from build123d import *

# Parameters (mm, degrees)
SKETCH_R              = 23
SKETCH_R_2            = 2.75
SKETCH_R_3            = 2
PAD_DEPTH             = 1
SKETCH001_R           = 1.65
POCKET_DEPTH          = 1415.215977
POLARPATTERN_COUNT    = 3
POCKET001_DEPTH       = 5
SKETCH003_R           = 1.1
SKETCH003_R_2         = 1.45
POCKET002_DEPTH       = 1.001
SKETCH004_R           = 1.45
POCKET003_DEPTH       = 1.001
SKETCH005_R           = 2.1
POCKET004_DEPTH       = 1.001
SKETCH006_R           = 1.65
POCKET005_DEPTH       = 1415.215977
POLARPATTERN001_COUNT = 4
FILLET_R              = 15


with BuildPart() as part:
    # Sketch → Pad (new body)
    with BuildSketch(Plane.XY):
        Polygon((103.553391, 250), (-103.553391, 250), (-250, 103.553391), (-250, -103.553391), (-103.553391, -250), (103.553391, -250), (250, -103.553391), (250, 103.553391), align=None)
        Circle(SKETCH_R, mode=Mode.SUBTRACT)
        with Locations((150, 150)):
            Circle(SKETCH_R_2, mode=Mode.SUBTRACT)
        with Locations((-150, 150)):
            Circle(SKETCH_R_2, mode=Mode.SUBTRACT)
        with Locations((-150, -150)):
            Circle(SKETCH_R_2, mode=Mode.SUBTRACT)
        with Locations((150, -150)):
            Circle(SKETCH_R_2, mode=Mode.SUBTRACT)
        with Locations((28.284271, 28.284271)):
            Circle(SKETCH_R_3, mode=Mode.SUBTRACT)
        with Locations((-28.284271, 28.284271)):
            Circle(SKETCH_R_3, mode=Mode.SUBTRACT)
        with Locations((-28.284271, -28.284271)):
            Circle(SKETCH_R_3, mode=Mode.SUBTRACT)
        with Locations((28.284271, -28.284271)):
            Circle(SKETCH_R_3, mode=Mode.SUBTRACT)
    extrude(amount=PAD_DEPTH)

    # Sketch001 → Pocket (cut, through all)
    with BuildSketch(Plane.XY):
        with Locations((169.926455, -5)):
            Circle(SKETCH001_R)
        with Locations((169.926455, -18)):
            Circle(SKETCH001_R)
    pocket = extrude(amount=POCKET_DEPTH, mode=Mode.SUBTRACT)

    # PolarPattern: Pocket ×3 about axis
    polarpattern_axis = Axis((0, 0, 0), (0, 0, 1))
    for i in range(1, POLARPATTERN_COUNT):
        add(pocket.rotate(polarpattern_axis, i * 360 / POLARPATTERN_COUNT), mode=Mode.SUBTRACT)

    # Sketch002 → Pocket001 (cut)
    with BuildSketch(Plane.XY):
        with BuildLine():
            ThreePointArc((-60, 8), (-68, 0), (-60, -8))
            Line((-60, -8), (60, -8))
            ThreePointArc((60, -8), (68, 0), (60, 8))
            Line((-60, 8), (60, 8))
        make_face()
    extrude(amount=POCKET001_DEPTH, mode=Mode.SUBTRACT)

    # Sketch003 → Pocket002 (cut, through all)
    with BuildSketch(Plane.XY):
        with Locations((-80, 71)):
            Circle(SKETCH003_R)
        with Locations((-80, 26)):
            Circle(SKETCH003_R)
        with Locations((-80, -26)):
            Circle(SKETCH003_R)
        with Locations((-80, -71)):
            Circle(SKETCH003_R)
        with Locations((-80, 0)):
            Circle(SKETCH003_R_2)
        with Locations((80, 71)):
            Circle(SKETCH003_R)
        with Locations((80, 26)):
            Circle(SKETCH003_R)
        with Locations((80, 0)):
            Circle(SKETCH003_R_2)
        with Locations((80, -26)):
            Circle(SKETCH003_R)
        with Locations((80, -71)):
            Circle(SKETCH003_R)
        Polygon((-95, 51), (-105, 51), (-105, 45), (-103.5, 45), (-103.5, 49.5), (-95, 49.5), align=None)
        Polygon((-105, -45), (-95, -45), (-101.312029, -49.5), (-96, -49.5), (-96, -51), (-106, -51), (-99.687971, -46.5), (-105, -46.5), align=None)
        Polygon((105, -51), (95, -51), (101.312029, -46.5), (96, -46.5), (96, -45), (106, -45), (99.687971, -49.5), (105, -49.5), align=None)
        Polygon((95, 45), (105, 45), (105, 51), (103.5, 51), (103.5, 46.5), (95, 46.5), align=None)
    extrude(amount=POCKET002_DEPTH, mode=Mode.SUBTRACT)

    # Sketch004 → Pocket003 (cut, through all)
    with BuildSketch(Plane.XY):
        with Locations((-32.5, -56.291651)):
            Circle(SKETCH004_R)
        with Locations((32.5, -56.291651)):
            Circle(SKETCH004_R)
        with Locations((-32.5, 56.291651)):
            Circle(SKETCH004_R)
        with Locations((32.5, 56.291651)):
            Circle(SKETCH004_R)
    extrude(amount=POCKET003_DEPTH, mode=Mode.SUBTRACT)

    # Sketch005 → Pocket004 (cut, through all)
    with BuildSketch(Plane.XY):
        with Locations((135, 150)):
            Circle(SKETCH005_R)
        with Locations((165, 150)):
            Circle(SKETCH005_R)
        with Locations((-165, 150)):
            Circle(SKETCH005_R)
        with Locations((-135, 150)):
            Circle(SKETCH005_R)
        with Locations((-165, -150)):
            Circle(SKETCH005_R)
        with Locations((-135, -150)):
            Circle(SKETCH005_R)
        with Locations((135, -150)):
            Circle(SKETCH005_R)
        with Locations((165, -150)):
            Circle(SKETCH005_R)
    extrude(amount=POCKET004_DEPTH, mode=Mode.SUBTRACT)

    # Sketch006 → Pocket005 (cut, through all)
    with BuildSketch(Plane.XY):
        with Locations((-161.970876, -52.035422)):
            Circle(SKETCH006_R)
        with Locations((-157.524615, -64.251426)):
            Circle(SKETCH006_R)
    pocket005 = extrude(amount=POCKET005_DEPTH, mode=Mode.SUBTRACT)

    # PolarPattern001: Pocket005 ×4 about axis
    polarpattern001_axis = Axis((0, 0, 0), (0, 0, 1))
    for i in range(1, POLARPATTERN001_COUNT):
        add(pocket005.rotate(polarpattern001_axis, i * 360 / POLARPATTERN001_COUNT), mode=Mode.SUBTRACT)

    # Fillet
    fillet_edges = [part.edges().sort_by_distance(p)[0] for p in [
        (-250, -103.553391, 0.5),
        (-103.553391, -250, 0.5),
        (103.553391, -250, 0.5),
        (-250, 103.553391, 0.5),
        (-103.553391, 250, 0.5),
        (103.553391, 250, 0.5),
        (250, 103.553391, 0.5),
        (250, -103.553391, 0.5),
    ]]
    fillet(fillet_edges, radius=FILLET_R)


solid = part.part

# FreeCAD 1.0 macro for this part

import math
import FreeCAD as App
import Part
import Sketcher

V = App.Vector


def edges_at(feature, points):
    """Names of the edges that pass closest to the given points."""
    edges = feature.Shape.Edges
    near = lambda p: min(range(len(edges)), key=lambda i: edges[i].distToShape(Part.Vertex(*p))[0])
    return sorted({f"Edge{near(p) + 1}" for p in points})


def add_polygon(sketch, points):
    """Adds a closed chain of lines whose ends are joined by coincident constraints."""
    first, n = sketch.GeometryCount, len(points)
    for a, b in zip(points, points[1:] + points[:1]):
        sketch.addGeometry(Part.LineSegment(App.Vector(*a, 0), App.Vector(*b, 0)), False)
    for i in range(n):
        sketch.addConstraint(Sketcher.Constraint("Coincident", first + i, 2, first + (i + 1) % n, 1))

doc = App.newDocument("Part")
body = doc.addObject("PartDesign::Body", "Body")

# Sketch on XY plane
sketch1 = doc.addObject("Sketcher::SketchObject", "Sketch")
body.addObject(sketch1)
sketch1.AttachmentSupport = (doc.XY_Plane, [""])
sketch1.MapMode = "FlatFace"
add_polygon(sketch1, [(103.6, 250), (-103.6, 250), (-250, 103.6), (-250, -103.6), (-103.6, -250), (103.6, -250), (250, -103.6), (250, 103.6)])  # lines 0-7
sketch1.addGeometry(Part.Circle(V(-150, -150, 0), V(0, 0, 1), 2.8), False)  # 8
sketch1.addGeometry(Part.Circle(V(-28.3, -28.3, 0), V(0, 0, 1), 2), False)  # 9
sketch1.addGeometry(Part.Circle(V(150, -150, 0), V(0, 0, 1), 2.8), False)  # 10
sketch1.addGeometry(Part.Circle(V(28.3, -28.3, 0), V(0, 0, 1), 2), False)  # 11
sketch1.addGeometry(Part.Circle(V(-28.3, 28.3, 0), V(0, 0, 1), 2), False)  # 12
sketch1.addGeometry(Part.Circle(V(-150, 150, 0), V(0, 0, 1), 2.8), False)  # 13
sketch1.addGeometry(Part.Circle(V(0, 0, 0), V(0, 0, 1), 23), False)  # 14
sketch1.addGeometry(Part.Circle(V(28.3, 28.3, 0), V(0, 0, 1), 2), False)  # 15
sketch1.addGeometry(Part.Circle(V(150, 150, 0), V(0, 0, 1), 2.8), False)  # 16
sketch1.addConstraint(Sketcher.Constraint("Horizontal", 0))
sketch1.addConstraint(Sketcher.Constraint("Vertical", 2))
sketch1.addConstraint(Sketcher.Constraint("Horizontal", 4))
sketch1.addConstraint(Sketcher.Constraint("Vertical", 6))
sketch1.addConstraint(Sketcher.Constraint("Coincident", 14, 3, -1, 1))
sketch1.addConstraint(Sketcher.Constraint("Equal", 8, 10))
sketch1.addConstraint(Sketcher.Constraint("Equal", 9, 11))
sketch1.addConstraint(Sketcher.Constraint("Equal", 11, 12))
sketch1.addConstraint(Sketcher.Constraint("Equal", 10, 13))
sketch1.addConstraint(Sketcher.Constraint("Equal", 12, 15))
sketch1.addConstraint(Sketcher.Constraint("Equal", 13, 16))
sketch1.addConstraint(Sketcher.Constraint("Symmetric", 11, 3, 12, 3, -1, 1))
sketch1.addConstraint(Sketcher.Constraint("Symmetric", 10, 3, 13, 3, -1, 1))
sketch1.addConstraint(Sketcher.Constraint("Symmetric", 9, 3, 15, 3, -1, 1))
sketch1.addConstraint(Sketcher.Constraint("Symmetric", 8, 3, 16, 3, -1, 1))
sketch1.addConstraint(Sketcher.Constraint("Symmetric", 0, 2, 4, 2, -1, 1))
sketch1.addConstraint(Sketcher.Constraint("Symmetric", 1, 2, 5, 2, -1, 1))
sketch1.addConstraint(Sketcher.Constraint("Symmetric", 8, 3, 10, 3, -2))
sketch1.addConstraint(Sketcher.Constraint("Symmetric", 9, 3, 11, 3, -2))
sketch1.addConstraint(Sketcher.Constraint("Perpendicular", 1, 3))
sketch1.addConstraint(Sketcher.Constraint("Perpendicular", 5, 7))
sketch1.addConstraint(Sketcher.Constraint("Horizontal", 2, 2, 5, 2))
sketch1.addConstraint(Sketcher.Constraint("Horizontal", 1, 2, 6, 2))
sketch1.addConstraint(Sketcher.Constraint("Vertical", 0, 2, 3, 2))
sketch1.addConstraint(Sketcher.Constraint("Equal", 4, 2))
sketch1.addConstraint(Sketcher.Constraint("Diameter", 9, 4.0))
sketch1.addConstraint(Sketcher.Constraint("Diameter", 14, 46.0))
sketch1.addConstraint(Sketcher.Constraint("Diameter", 8, 5.5))
sketch1.addConstraint(Sketcher.Constraint("DistanceX", 8, 3, -1, 1, 150.0))
sketch1.addConstraint(Sketcher.Constraint("DistanceY", 8, 3, -1, 1, 150.0))
sketch1.addConstraint(Sketcher.Constraint("DistanceY", -1, 1, 0, 2, 250.0))
sketch1.addConstraint(Sketcher.Constraint("Distance", 1, 207.106781))
sketch1.addConstraint(Sketcher.Constraint("DistanceX", 9, 3, -1, 1, 28.284271))
sketch1.addConstraint(Sketcher.Constraint("DistanceY", 9, 3, -1, 1, 28.284271))
pad1 = doc.addObject("PartDesign::Pad", "Pad")
body.addObject(pad1)
pad1.Profile = sketch1
pad1.Length = 1

# Sketch on XY plane
sketch2 = doc.addObject("Sketcher::SketchObject", "Sketch001")
body.addObject(sketch2)
sketch2.AttachmentSupport = (doc.XY_Plane, [""])
sketch2.MapMode = "FlatFace"
sketch2.addGeometry(Part.Circle(V(169.9, -5, 0), V(0, 0, 1), 1.6), False)
sketch2.addGeometry(Part.Circle(V(169.9, -18, 0), V(0, 0, 1), 1.6), False)
sketch2.addConstraint(Sketcher.Constraint("Equal", 0, 1))
sketch2.addConstraint(Sketcher.Constraint("Vertical", 0, 3, 1, 3))
sketch2.addConstraint(Sketcher.Constraint("Diameter", 0, 3.3))
sketch2.addConstraint(Sketcher.Constraint("DistanceY", 0, 3, -1, 1, 5.0))
sketch2.addConstraint(Sketcher.Constraint("DistanceY", 1, 3, -1, 1, 18.0))
sketch2.addConstraint(Sketcher.Constraint("DistanceX", -1, 1, 0, 3, 169.926455))
pocket1 = doc.addObject("PartDesign::Pocket", "Pocket")
body.addObject(pocket1)
pocket1.Profile = sketch2
pocket1.Type = "ThroughAll"
pocket1.Reversed = True
doc.recompute()

polarpattern = doc.addObject("PartDesign::PolarPattern", "PolarPattern")
body.addObject(polarpattern)
polarpattern.Originals = [pocket1]
polarpattern.Axis = (doc.Z_Axis, [""])
polarpattern.Angle = 360
polarpattern.Occurrences = 3
body.Tip = polarpattern

# Sketch on XY plane
sketch3 = doc.addObject("Sketcher::SketchObject", "Sketch002")
body.addObject(sketch3)
sketch3.AttachmentSupport = (doc.XY_Plane, [""])
sketch3.MapMode = "FlatFace"
sketch3.addGeometry(Part.ArcOfCircle(Part.Circle(V(-60, 0, 0), V(0, 0, 1), 8), math.radians(90), math.radians(270)), False)
sketch3.addGeometry(Part.LineSegment(V(-60, -8, 0), V(60, -8, 0)), False)
sketch3.addGeometry(Part.ArcOfCircle(Part.Circle(V(60, 0, 0), V(0, 0, 1), 8), math.radians(-90), math.radians(90)), False)
sketch3.addGeometry(Part.LineSegment(V(60, 8, 0), V(-60, 8, 0)), False)
sketch3.addConstraint(Sketcher.Constraint("Tangent", 0, 2, 1, 1))
sketch3.addConstraint(Sketcher.Constraint("Tangent", 1, 2, 2, 1))
sketch3.addConstraint(Sketcher.Constraint("Tangent", 2, 2, 3, 1))
sketch3.addConstraint(Sketcher.Constraint("Tangent", 3, 2, 0, 1))
sketch3.addConstraint(Sketcher.Constraint("Horizontal", 1))
sketch3.addConstraint(Sketcher.Constraint("Horizontal", 3))
sketch3.addConstraint(Sketcher.Constraint("Symmetric", 0, 3, 2, 3, -1, 1))
sketch3.addConstraint(Sketcher.Constraint("Radius", 0, 8.0))
sketch3.addConstraint(Sketcher.Constraint("DistanceX", 1, 1, 1, 2, 120.0))
pocket2 = doc.addObject("PartDesign::Pocket", "Pocket001")
body.addObject(pocket2)
pocket2.Profile = sketch3
pocket2.Length = 5
pocket2.Reversed = True

# Sketch on XY plane
sketch4 = doc.addObject("Sketcher::SketchObject", "Sketch003")
body.addObject(sketch4)
sketch4.AttachmentSupport = (doc.XY_Plane, [""])
sketch4.MapMode = "FlatFace"
sketch4.addGeometry(Part.Circle(V(-80, 71, 0), V(0, 0, 1), 1.1), False)  # 0
sketch4.addGeometry(Part.Circle(V(-80, 26, 0), V(0, 0, 1), 1.1), False)  # 1
sketch4.addGeometry(Part.Circle(V(-80, -26, 0), V(0, 0, 1), 1.1), False)  # 2
sketch4.addGeometry(Part.Circle(V(-80, -71, 0), V(0, 0, 1), 1.1), False)  # 3
sketch4.addGeometry(Part.Circle(V(-80, 0, 0), V(0, 0, 1), 1.4), False)  # 4
sketch4.addGeometry(Part.Circle(V(80, 71, 0), V(0, 0, 1), 1.1), False)  # 5
sketch4.addGeometry(Part.Circle(V(80, 26, 0), V(0, 0, 1), 1.1), False)  # 6
sketch4.addGeometry(Part.Circle(V(80, 0, 0), V(0, 0, 1), 1.4), False)  # 7
sketch4.addGeometry(Part.Circle(V(80, -26, 0), V(0, 0, 1), 1.1), False)  # 8
sketch4.addGeometry(Part.Circle(V(80, -71, 0), V(0, 0, 1), 1.1), False)  # 9
add_polygon(sketch4, [(-95, 51), (-105, 51), (-105, 45), (-103.5, 45), (-103.5, 49.5), (-95, 49.5)])  # lines 10-15
add_polygon(sketch4, [(-95, -45), (-105, -45), (-105, -46.5), (-99.7, -46.5), (-106, -51), (-96, -51), (-96, -49.5), (-101.3, -49.5)])  # lines 16-23
add_polygon(sketch4, [(95, -51), (105, -51), (105, -49.5), (99.7, -49.5), (106, -45), (96, -45), (96, -46.5), (101.3, -46.5)])  # lines 24-31
add_polygon(sketch4, [(95, 45), (105, 45), (105, 51), (103.5, 51), (103.5, 46.5), (95, 46.5)])  # lines 32-37
sketch4.addConstraint(Sketcher.Constraint("Horizontal", 10))
sketch4.addConstraint(Sketcher.Constraint("Vertical", 11))
sketch4.addConstraint(Sketcher.Constraint("Horizontal", 12))
sketch4.addConstraint(Sketcher.Constraint("Vertical", 13))
sketch4.addConstraint(Sketcher.Constraint("Horizontal", 14))
sketch4.addConstraint(Sketcher.Constraint("Vertical", 15))
sketch4.addConstraint(Sketcher.Constraint("Horizontal", 16))
sketch4.addConstraint(Sketcher.Constraint("Vertical", 17))
sketch4.addConstraint(Sketcher.Constraint("Horizontal", 18))
sketch4.addConstraint(Sketcher.Constraint("Horizontal", 20))
sketch4.addConstraint(Sketcher.Constraint("Vertical", 21))
sketch4.addConstraint(Sketcher.Constraint("Horizontal", 22))
sketch4.addConstraint(Sketcher.Constraint("Horizontal", 24))
sketch4.addConstraint(Sketcher.Constraint("Vertical", 25))
sketch4.addConstraint(Sketcher.Constraint("Horizontal", 26))
sketch4.addConstraint(Sketcher.Constraint("Horizontal", 28))
sketch4.addConstraint(Sketcher.Constraint("Vertical", 29))
sketch4.addConstraint(Sketcher.Constraint("Horizontal", 30))
sketch4.addConstraint(Sketcher.Constraint("Horizontal", 32))
sketch4.addConstraint(Sketcher.Constraint("Vertical", 33))
sketch4.addConstraint(Sketcher.Constraint("Horizontal", 34))
sketch4.addConstraint(Sketcher.Constraint("Vertical", 35))
sketch4.addConstraint(Sketcher.Constraint("Horizontal", 36))
sketch4.addConstraint(Sketcher.Constraint("Vertical", 37))
sketch4.addConstraint(Sketcher.Constraint("Equal", 0, 1))
sketch4.addConstraint(Sketcher.Constraint("Equal", 1, 2))
sketch4.addConstraint(Sketcher.Constraint("Equal", 2, 3))
sketch4.addConstraint(Sketcher.Constraint("Equal", 3, 5))
sketch4.addConstraint(Sketcher.Constraint("Equal", 5, 6))
sketch4.addConstraint(Sketcher.Constraint("Equal", 4, 7))
sketch4.addConstraint(Sketcher.Constraint("Equal", 6, 8))
sketch4.addConstraint(Sketcher.Constraint("Equal", 8, 9))
sketch4.addConstraint(Sketcher.Constraint("Symmetric", 3, 3, 5, 3, -1, 1))
sketch4.addConstraint(Sketcher.Constraint("Symmetric", 2, 3, 6, 3, -1, 1))
sketch4.addConstraint(Sketcher.Constraint("Symmetric", 4, 3, 7, 3, -1, 1))
sketch4.addConstraint(Sketcher.Constraint("Symmetric", 1, 3, 8, 3, -1, 1))
sketch4.addConstraint(Sketcher.Constraint("Symmetric", 0, 3, 9, 3, -1, 1))
sketch4.addConstraint(Sketcher.Constraint("Symmetric", 10, 2, 24, 2, -1, 1))
sketch4.addConstraint(Sketcher.Constraint("Symmetric", 16, 2, 32, 2, -1, 1))
sketch4.addConstraint(Sketcher.Constraint("Symmetric", 0, 3, 5, 3, -2))
sketch4.addConstraint(Sketcher.Constraint("Symmetric", 1, 3, 6, 3, -2))
sketch4.addConstraint(Sketcher.Constraint("Symmetric", 11, 2, 32, 2, -2))
sketch4.addConstraint(Sketcher.Constraint("PointOnObject", 4, 3, -1))
sketch4.addConstraint(Sketcher.Constraint("Parallel", 19, 23))
sketch4.addConstraint(Sketcher.Constraint("Parallel", 23, 27))
sketch4.addConstraint(Sketcher.Constraint("Parallel", 27, 31))
sketch4.addConstraint(Sketcher.Constraint("Horizontal", 20, 2, 24, 2))
sketch4.addConstraint(Sketcher.Constraint("Horizontal", 22, 2, 25, 2))
sketch4.addConstraint(Sketcher.Constraint("Horizontal", 23, 2, 27, 2))
sketch4.addConstraint(Sketcher.Constraint("Horizontal", 18, 2, 29, 2))
sketch4.addConstraint(Sketcher.Constraint("Horizontal", 15, 2, 33, 2))
sketch4.addConstraint(Sketcher.Constraint("Vertical", 0, 3, 1, 3))
sketch4.addConstraint(Sketcher.Constraint("Vertical", 3, 3, 4, 3))
sketch4.addConstraint(Sketcher.Constraint("Vertical", 15, 2, 23, 2))
sketch4.addConstraint(Sketcher.Constraint("Vertical", 31, 2, 36, 2))
sketch4.addConstraint(Sketcher.Constraint("Equal", 16, 20))
sketch4.addConstraint(Sketcher.Constraint("Equal", 18, 22))
sketch4.addConstraint(Sketcher.Constraint("Equal", 20, 24))
sketch4.addConstraint(Sketcher.Constraint("Equal", 22, 26))
sketch4.addConstraint(Sketcher.Constraint("Equal", 24, 28))
sketch4.addConstraint(Sketcher.Constraint("Equal", 12, 34))
sketch4.addConstraint(Sketcher.Constraint("Equal", 34, 15))
sketch4.addConstraint(Sketcher.Constraint("Equal", 15, 17))
sketch4.addConstraint(Sketcher.Constraint("Equal", 13, 35))
sketch4.addConstraint(Sketcher.Constraint("Diameter", 0, 2.2))
sketch4.addConstraint(Sketcher.Constraint("Diameter", 4, 2.9))
sketch4.addConstraint(Sketcher.Constraint("DistanceX", 10, 2, 10, 1, 10.0))
sketch4.addConstraint(Sketcher.Constraint("DistanceY", 11, 2, 11, 1, 6.0))
sketch4.addConstraint(Sketcher.Constraint("DistanceX", 12, 1, 12, 2, 1.5))
sketch4.addConstraint(Sketcher.Constraint("DistanceX", 0, 3, -1, 1, 80.0))
sketch4.addConstraint(Sketcher.Constraint("DistanceY", -1, 1, 0, 3, 71.0))
sketch4.addConstraint(Sketcher.Constraint("DistanceY", -1, 1, 1, 3, 26.0))
sketch4.addConstraint(Sketcher.Constraint("DistanceX", 10, 2, -1, 1, 105.0))
sketch4.addConstraint(Sketcher.Constraint("DistanceY", -1, 1, 10, 2, 51.0))
sketch4.addConstraint(Sketcher.Constraint("DistanceX", 19, 2, -1, 1, 106.0))
sketch4.addConstraint(Sketcher.Constraint("DistanceX", 18, 1, 18, 2, 5.312029))
pocket3 = doc.addObject("PartDesign::Pocket", "Pocket002")
body.addObject(pocket3)
pocket3.Profile = sketch4
pocket3.Type = "ThroughAll"
pocket3.Reversed = True

# Sketch on XY plane
sketch5 = doc.addObject("Sketcher::SketchObject", "Sketch004")
body.addObject(sketch5)
sketch5.AttachmentSupport = (doc.XY_Plane, [""])
sketch5.MapMode = "FlatFace"
sketch5.addGeometry(Part.Circle(V(-32.5, -56.3, 0), V(0, 0, 1), 1.4), False)
sketch5.addGeometry(Part.Circle(V(32.5, -56.3, 0), V(0, 0, 1), 1.4), False)
sketch5.addGeometry(Part.Circle(V(-32.5, 56.3, 0), V(0, 0, 1), 1.4), False)
sketch5.addGeometry(Part.Circle(V(32.5, 56.3, 0), V(0, 0, 1), 1.4), False)
sketch5.addConstraint(Sketcher.Constraint("Equal", 0, 1))
sketch5.addConstraint(Sketcher.Constraint("Equal", 1, 2))
sketch5.addConstraint(Sketcher.Constraint("Equal", 2, 3))
sketch5.addConstraint(Sketcher.Constraint("Symmetric", 1, 3, 2, 3, -1, 1))
sketch5.addConstraint(Sketcher.Constraint("Symmetric", 0, 3, 3, 3, -1, 1))
sketch5.addConstraint(Sketcher.Constraint("Symmetric", 0, 3, 1, 3, -2))
sketch5.addConstraint(Sketcher.Constraint("Diameter", 0, 2.9))
sketch5.addConstraint(Sketcher.Constraint("DistanceX", 0, 3, 1, 3, 65.0))
sketch5.addConstraint(Sketcher.Constraint("DistanceY", 0, 3, -1, 1, 56.291651))
pocket4 = doc.addObject("PartDesign::Pocket", "Pocket003")
body.addObject(pocket4)
pocket4.Profile = sketch5
pocket4.Type = "ThroughAll"
pocket4.Reversed = True

# Sketch on XY plane
sketch6 = doc.addObject("Sketcher::SketchObject", "Sketch005")
body.addObject(sketch6)
sketch6.AttachmentSupport = (doc.XY_Plane, [""])
sketch6.MapMode = "FlatFace"
sketch6.addGeometry(Part.Circle(V(135, 150, 0), V(0, 0, 1), 2.1), False)
sketch6.addGeometry(Part.Circle(V(165, 150, 0), V(0, 0, 1), 2.1), False)
sketch6.addGeometry(Part.Circle(V(-165, 150, 0), V(0, 0, 1), 2.1), False)
sketch6.addGeometry(Part.Circle(V(-135, 150, 0), V(0, 0, 1), 2.1), False)
sketch6.addGeometry(Part.Circle(V(-165, -150, 0), V(0, 0, 1), 2.1), False)
sketch6.addGeometry(Part.Circle(V(-135, -150, 0), V(0, 0, 1), 2.1), False)
sketch6.addGeometry(Part.Circle(V(135, -150, 0), V(0, 0, 1), 2.1), False)
sketch6.addGeometry(Part.Circle(V(165, -150, 0), V(0, 0, 1), 2.1), False)
sketch6.addConstraint(Sketcher.Constraint("Equal", 0, 1))
sketch6.addConstraint(Sketcher.Constraint("Equal", 1, 2))
sketch6.addConstraint(Sketcher.Constraint("Equal", 2, 3))
sketch6.addConstraint(Sketcher.Constraint("Equal", 3, 4))
sketch6.addConstraint(Sketcher.Constraint("Equal", 4, 5))
sketch6.addConstraint(Sketcher.Constraint("Equal", 5, 6))
sketch6.addConstraint(Sketcher.Constraint("Equal", 6, 7))
sketch6.addConstraint(Sketcher.Constraint("Symmetric", 1, 3, 4, 3, -1, 1))
sketch6.addConstraint(Sketcher.Constraint("Symmetric", 0, 3, 5, 3, -1, 1))
sketch6.addConstraint(Sketcher.Constraint("Symmetric", 3, 3, 6, 3, -1, 1))
sketch6.addConstraint(Sketcher.Constraint("Symmetric", 2, 3, 7, 3, -1, 1))
sketch6.addConstraint(Sketcher.Constraint("Symmetric", 1, 3, 2, 3, -2))
sketch6.addConstraint(Sketcher.Constraint("Symmetric", 0, 3, 3, 3, -2))
sketch6.addConstraint(Sketcher.Constraint("Horizontal", 0, 3, 1, 3))
sketch6.addConstraint(Sketcher.Constraint("Diameter", 0, 4.2))
sketch6.addConstraint(Sketcher.Constraint("DistanceX", -1, 1, 0, 3, 135.0))
sketch6.addConstraint(Sketcher.Constraint("DistanceY", -1, 1, 0, 3, 150.0))
sketch6.addConstraint(Sketcher.Constraint("DistanceX", -1, 1, 1, 3, 165.0))
pocket5 = doc.addObject("PartDesign::Pocket", "Pocket004")
body.addObject(pocket5)
pocket5.Profile = sketch6
pocket5.Type = "ThroughAll"
pocket5.Reversed = True

# Sketch on XY plane
sketch7 = doc.addObject("Sketcher::SketchObject", "Sketch006")
body.addObject(sketch7)
sketch7.AttachmentSupport = (doc.XY_Plane, [""])
sketch7.MapMode = "FlatFace"
sketch7.addGeometry(Part.Circle(V(-162, -52, 0), V(0, 0, 1), 1.6), False)
sketch7.addGeometry(Part.Circle(V(-157.5, -64.3, 0), V(0, 0, 1), 1.6), False)
sketch7.addConstraint(Sketcher.Constraint("Equal", 0, 1))
sketch7.addConstraint(Sketcher.Constraint("Diameter", 0, 3.3))
sketch7.addConstraint(Sketcher.Constraint("DistanceY", 0, 3, -1, 1, 52.035422))
sketch7.addConstraint(Sketcher.Constraint("DistanceX", 0, 3, 1, 3, 4.446261))
sketch7.addConstraint(Sketcher.Constraint("DistanceX", 0, 3, -1, 1, 161.970876))
sketch7.addConstraint(Sketcher.Constraint("DistanceY", 1, 3, -1, 1, 64.251426))
pocket6 = doc.addObject("PartDesign::Pocket", "Pocket005")
body.addObject(pocket6)
pocket6.Profile = sketch7
pocket6.Type = "ThroughAll"
pocket6.Reversed = True
doc.recompute()

polarpattern2 = doc.addObject("PartDesign::PolarPattern", "PolarPattern001")
body.addObject(polarpattern2)
polarpattern2.Originals = [pocket6]
polarpattern2.Axis = (doc.Z_Axis, [""])
polarpattern2.Angle = 360
polarpattern2.Occurrences = 4
body.Tip = polarpattern2
doc.recompute()

fillet = doc.addObject("PartDesign::Fillet", "Fillet")
body.addObject(fillet)
fillet.Base = (polarpattern2, edges_at(polarpattern2, [
    (-250, -103.553, 0.5),
    (-103.553, -250, 0.5),
    (103.553, -250, 0.5),
    (-250, 103.553, 0.5),
    (-103.553, 250, 0.5),
    (103.553, 250, 0.5),
    (250, 103.553, 0.5),
    (250, -103.553, 0.5),
]))
fillet.Radius = 15

doc.recompute()
